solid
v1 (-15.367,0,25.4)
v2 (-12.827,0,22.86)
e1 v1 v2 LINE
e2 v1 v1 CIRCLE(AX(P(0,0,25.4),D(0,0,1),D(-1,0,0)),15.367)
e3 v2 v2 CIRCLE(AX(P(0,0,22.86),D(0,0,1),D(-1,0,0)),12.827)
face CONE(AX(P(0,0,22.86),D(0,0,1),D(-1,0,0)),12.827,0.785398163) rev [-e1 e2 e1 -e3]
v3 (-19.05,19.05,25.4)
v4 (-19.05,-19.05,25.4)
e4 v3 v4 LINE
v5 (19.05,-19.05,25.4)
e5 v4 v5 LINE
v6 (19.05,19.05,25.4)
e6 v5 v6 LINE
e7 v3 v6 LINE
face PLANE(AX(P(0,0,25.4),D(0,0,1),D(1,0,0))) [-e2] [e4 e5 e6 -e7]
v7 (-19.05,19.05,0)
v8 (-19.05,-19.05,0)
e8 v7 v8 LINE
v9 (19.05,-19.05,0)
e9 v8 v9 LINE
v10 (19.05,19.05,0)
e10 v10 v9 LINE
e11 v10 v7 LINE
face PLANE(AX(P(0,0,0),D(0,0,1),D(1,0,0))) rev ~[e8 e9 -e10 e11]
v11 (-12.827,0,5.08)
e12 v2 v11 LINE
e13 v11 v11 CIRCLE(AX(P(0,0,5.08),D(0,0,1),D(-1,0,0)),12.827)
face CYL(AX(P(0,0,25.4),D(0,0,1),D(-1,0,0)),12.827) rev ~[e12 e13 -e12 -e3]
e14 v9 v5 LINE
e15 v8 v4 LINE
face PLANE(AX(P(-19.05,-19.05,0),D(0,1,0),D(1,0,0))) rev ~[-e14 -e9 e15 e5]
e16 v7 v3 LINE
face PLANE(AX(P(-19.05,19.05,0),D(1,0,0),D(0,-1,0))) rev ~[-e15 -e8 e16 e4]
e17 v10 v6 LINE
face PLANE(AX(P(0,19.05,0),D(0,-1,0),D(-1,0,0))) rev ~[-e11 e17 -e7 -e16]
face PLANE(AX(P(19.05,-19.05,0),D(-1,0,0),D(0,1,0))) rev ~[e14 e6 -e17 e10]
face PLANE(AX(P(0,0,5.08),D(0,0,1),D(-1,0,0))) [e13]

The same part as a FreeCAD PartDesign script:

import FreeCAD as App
import Part
import Sketcher
Q = App.Units.Quantity


def edges_at(feature, points):
    """Names of the edges that pass closest to the given points."""
    edges = feature.Shape.Edges
    near = lambda p: min(range(len(edges)), key=lambda i: edges[i].distToShape(Part.Vertex(*p))[0])
    return sorted({f"Edge{near(p) + 1}" for p in points})

doc = App.newDocument("Part")
body = doc.addObject("PartDesign::Body", "Body")

sketch1 = body.newObject("Sketcher::SketchObject", "Sketch")
sketch1.AttachmentSupport = (doc.getObject("XY_Plane"), [""])
sketch1.MapMode = "FlatFace"
sketch1.addGeometry([
    Part.LineSegment(App.Vector(-19.05, 19.05, 0), App.Vector(-19.05, -19.05, 0)),
    Part.LineSegment(App.Vector(-19.05, -19.05, 0), App.Vector(19.05, -19.05, 0)),
    Part.LineSegment(App.Vector(19.05, -19.05, 0), App.Vector(19.05, 19.05, 0)),
    Part.LineSegment(App.Vector(19.05, 19.05, 0), App.Vector(-19.05, 19.05, 0)),
], False)
sketch1.addConstraint([
    Sketcher.Constraint("Coincident", 0, 2, 1, 1),
    Sketcher.Constraint("Coincident", 1, 2, 2, 1),
    Sketcher.Constraint("Coincident", 2, 2, 3, 1),
    Sketcher.Constraint("Coincident", 3, 2, 0, 1),
    Sketcher.Constraint("Vertical", 0),
    Sketcher.Constraint("Horizontal", 1),
    Sketcher.Constraint("Vertical", 2),
    Sketcher.Constraint("Horizontal", 3),
    Sketcher.Constraint("Symmetric", 0, 2, 2, 2, -1, 1),
    Sketcher.Constraint("Equal", 3, 0),
    Sketcher.Constraint("DistanceX", 1, 1, 1, 2, Q("1.5 in")),
])
pad1 = body.newObject("PartDesign::Pad", "Pad")
pad1.Profile = sketch1
pad1.Length = Q("1 in")

sketch2 = body.newObject("Sketcher::SketchObject", "Sketch001")
sketch2.AttachmentSupport = (doc.getObject("XY_Plane"), [""])
sketch2.MapMode = "FlatFace"
sketch2.AttachmentOffset = App.Placement(App.Vector(0, 0, 1 * 25.4), App.Rotation())
sketch2.addGeometry(Part.Circle(App.Vector(0, 0, 0), App.Vector(0, 0, 1), 12.827), False)
sketch2.addConstraint([
    Sketcher.Constraint("Coincident", 0, 3, -1, 1),
    Sketcher.Constraint("Diameter", 0, Q("1.01 in")),
])
pocket1 = body.newObject("PartDesign::Pocket", "Pocket")
pocket1.Profile = sketch2
pocket1.Length = Q("0.8 in")
doc.recompute()

chamfer = body.newObject("PartDesign::Chamfer", "Chamfer")
chamfer.Base = (pocket1, edges_at(pocket1, [(11.959, -4.638, 25.4)]))
chamfer.Size = Q("0.1 in")

doc.recompute()
